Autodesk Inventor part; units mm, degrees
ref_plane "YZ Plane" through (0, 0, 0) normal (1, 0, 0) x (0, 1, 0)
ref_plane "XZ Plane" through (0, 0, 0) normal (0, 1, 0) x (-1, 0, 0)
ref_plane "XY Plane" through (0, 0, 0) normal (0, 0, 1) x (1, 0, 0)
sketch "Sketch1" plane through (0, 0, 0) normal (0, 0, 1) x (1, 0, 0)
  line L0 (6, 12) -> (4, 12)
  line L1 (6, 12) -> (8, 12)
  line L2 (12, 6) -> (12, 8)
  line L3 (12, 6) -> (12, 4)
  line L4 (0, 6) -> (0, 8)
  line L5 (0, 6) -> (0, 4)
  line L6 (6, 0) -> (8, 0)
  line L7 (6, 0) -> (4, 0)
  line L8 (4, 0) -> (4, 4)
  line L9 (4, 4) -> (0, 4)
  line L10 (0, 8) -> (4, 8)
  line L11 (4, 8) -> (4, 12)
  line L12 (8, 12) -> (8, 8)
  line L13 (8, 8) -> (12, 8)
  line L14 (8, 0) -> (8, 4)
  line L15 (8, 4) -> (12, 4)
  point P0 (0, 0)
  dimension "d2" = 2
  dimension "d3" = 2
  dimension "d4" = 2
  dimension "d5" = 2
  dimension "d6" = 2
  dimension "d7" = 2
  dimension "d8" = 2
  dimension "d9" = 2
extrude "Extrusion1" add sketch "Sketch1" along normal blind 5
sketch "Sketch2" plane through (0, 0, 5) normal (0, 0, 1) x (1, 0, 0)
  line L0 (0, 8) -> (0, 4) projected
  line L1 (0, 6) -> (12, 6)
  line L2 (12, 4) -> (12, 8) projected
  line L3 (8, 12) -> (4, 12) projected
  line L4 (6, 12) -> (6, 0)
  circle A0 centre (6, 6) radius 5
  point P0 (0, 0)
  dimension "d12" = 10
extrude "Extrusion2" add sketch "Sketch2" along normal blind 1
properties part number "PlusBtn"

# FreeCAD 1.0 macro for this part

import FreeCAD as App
import Part
import Sketcher


def add_polygon(sketch, points):
    """Adds a closed chain of lines whose ends are joined by coincident constraints."""
    first, n = sketch.GeometryCount, len(points)
    for a, b in zip(points, points[1:] + points[:1]):
        sketch.addGeometry(Part.LineSegment(App.Vector(*a, 0), App.Vector(*b, 0)), False)
    for i in range(n):
        sketch.addConstraint(Sketcher.Constraint("Coincident", first + i, 2, first + (i + 1) % n, 1))

doc = App.newDocument("Part")
body = doc.addObject("PartDesign::Body", "Body")

# Sketch on XY plane
sketch1 = doc.addObject("Sketcher::SketchObject", "Sketch")
body.addObject(sketch1)
sketch1.AttachmentSupport = (doc.XY_Plane, [""])
sketch1.MapMode = "FlatFace"
add_polygon(sketch1, [(8, 12), (4, 12), (4, 8), (0, 8), (0, 4), (4, 4), (4, 0), (8, 0), (8, 4), (12, 4), (12, 8), (8, 8)])  # lines 0-11
sketch1.addConstraint([
    Sketcher.Constraint("Horizontal", 0),
    Sketcher.Constraint("Vertical", 1),
    Sketcher.Constraint("Horizontal", 2),
    Sketcher.Constraint("Vertical", 3),
    Sketcher.Constraint("Horizontal", 4),
    Sketcher.Constraint("Vertical", 5),
    Sketcher.Constraint("Horizontal", 6),
    Sketcher.Constraint("Vertical", 7),
    Sketcher.Constraint("Horizontal", 8),
    Sketcher.Constraint("Vertical", 9),
    Sketcher.Constraint("Horizontal", 10),
    Sketcher.Constraint("Vertical", 11),
    Sketcher.Constraint("PointOnObject", 2, 2, -2),
    Sketcher.Constraint("PointOnObject", 5, 2, -1),
    Sketcher.Constraint("Horizontal", 4, 2, 7, 2),
    Sketcher.Constraint("Horizontal", 2, 2, 9, 2),
    Sketcher.Constraint("Vertical", 1, 2, 4, 2),
    Sketcher.Constraint("Vertical", 7, 2, 10, 2),
    Sketcher.Constraint("Equal", 0, 2),
    Sketcher.Constraint("Equal", 6, 8),
    Sketcher.Constraint("Equal", 10, 1),
    Sketcher.Constraint("Equal", 1, 3),
    Sketcher.Constraint("Equal", 3, 5),
    Sketcher.Constraint("DistanceX", 0, 2, 0, 1, 4.0),
])
pad1 = doc.addObject("PartDesign::Pad", "Pad")
body.addObject(pad1)
pad1.Profile = sketch1
pad1.Length = 5

# Sketch on XY plane
sketch2 = doc.addObject("Sketcher::SketchObject", "Sketch001")
body.addObject(sketch2)
sketch2.AttachmentSupport = (doc.XY_Plane, [""])
sketch2.MapMode = "FlatFace"
sketch2.AttachmentOffset = App.Placement(App.Vector(0, 0, 5), App.Rotation())
sketch2.addGeometry(Part.Circle(App.Vector(6, 6, 0), App.Vector(0, 0, 1), 5), False)
sketch2.addConstraint([
    Sketcher.Constraint("Diameter", 0, 10.0),
    Sketcher.Constraint("DistanceX", -1, 1, 0, 3, 6.0),
    Sketcher.Constraint("DistanceY", -1, 1, 0, 3, 6.0),
])
pad2 = doc.addObject("PartDesign::Pad", "Pad001")
body.addObject(pad2)
pad2.Profile = sketch2
pad2.Length = 1

doc.recompute()
